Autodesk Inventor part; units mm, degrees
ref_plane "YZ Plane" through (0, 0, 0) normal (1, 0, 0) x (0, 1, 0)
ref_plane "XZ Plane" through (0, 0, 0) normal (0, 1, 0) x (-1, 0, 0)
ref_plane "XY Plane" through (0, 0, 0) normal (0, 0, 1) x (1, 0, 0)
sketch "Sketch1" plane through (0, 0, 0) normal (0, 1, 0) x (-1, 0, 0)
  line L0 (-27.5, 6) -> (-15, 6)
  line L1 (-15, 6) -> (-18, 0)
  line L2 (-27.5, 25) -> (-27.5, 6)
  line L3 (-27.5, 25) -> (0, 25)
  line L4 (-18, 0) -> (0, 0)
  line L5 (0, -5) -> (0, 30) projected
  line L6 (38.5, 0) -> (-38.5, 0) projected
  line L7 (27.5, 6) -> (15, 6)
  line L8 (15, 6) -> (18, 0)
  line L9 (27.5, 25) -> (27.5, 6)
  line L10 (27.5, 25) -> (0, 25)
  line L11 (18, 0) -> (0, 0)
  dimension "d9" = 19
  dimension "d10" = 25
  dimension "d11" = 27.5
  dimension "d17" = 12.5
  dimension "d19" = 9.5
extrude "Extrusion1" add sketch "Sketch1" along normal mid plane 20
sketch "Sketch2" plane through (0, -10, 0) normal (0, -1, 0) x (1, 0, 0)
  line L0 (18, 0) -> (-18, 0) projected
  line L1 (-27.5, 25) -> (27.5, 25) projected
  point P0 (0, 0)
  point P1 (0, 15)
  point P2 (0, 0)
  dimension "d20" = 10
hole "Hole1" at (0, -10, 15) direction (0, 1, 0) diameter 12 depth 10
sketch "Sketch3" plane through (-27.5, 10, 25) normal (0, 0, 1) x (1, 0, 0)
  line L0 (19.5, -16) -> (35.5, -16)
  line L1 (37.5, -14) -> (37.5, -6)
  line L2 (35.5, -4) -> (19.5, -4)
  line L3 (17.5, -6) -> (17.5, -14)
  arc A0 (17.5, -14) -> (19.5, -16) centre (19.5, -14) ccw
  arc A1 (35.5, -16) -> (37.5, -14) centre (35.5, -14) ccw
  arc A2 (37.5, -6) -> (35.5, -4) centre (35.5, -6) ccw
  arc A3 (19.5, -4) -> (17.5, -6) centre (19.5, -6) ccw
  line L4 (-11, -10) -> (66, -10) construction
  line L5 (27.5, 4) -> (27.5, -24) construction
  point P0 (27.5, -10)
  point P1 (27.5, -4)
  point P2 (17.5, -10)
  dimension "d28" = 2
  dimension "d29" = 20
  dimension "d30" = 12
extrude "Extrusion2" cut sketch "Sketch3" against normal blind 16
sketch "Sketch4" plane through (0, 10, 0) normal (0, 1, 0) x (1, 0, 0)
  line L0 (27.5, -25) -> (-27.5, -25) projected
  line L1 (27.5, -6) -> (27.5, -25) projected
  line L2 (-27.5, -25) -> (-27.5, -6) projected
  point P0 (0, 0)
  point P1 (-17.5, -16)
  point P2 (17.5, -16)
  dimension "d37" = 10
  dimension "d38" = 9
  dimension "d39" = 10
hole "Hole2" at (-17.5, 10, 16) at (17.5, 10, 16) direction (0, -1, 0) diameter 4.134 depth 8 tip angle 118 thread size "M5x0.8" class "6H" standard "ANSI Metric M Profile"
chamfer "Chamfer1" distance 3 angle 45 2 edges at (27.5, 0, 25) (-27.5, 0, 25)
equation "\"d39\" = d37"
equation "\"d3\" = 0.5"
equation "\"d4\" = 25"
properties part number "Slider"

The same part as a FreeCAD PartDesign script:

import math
import FreeCAD as App
import Part
import Sketcher

V = App.Vector


def edges_at(feature, points):
    """Names of the edges that pass closest to the given points."""
    edges = feature.Shape.Edges
    near = lambda p: min(range(len(edges)), key=lambda i: edges[i].distToShape(Part.Vertex(*p))[0])
    return sorted({f"Edge{near(p) + 1}" for p in points})


def add_polygon(sketch, points):
    """Adds a closed chain of lines whose ends are joined by coincident constraints."""
    first, n = sketch.GeometryCount, len(points)
    for a, b in zip(points, points[1:] + points[:1]):
        sketch.addGeometry(Part.LineSegment(App.Vector(*a, 0), App.Vector(*b, 0)), False)
    for i in range(n):
        sketch.addConstraint(Sketcher.Constraint("Coincident", first + i, 2, first + (i + 1) % n, 1))

doc = App.newDocument("Part")
body = doc.addObject("PartDesign::Body", "Body")

# Sketch on XZ plane
sketch1 = body.newObject("Sketcher::SketchObject", "Sketch")
sketch1.AttachmentSupport = (doc.getObject("XZ_Plane"), [""])
sketch1.MapMode = "FlatFace"
add_polygon(sketch1, [(28, 25), (28, 6), (15, 6), (18, 0), (-18, 0), (-15, 6), (-28, 6), (-28, 25)])  # lines 0-7
sketch1.addConstraint([
    Sketcher.Constraint("Vertical", 0),
    Sketcher.Constraint("Horizontal", 1),
    Sketcher.Constraint("Horizontal", 3),
    Sketcher.Constraint("Horizontal", 5),
    Sketcher.Constraint("Vertical", 6),
    Sketcher.Constraint("Horizontal", 7),
    Sketcher.Constraint("Symmetric", 2, 2, 3, 2, -1, 1),
    Sketcher.Constraint("Symmetric", 1, 2, 4, 2, -2),
    Sketcher.Constraint("Equal", 1, 5),
    Sketcher.Constraint("DistanceY", 0, 2, 0, 1, 19.0),
    Sketcher.Constraint("DistanceX", 1, 2, 1, 1, 12.5),
    Sketcher.Constraint("DistanceY", -1, 1, 6, 2, 25.0),
    Sketcher.Constraint("DistanceX", -1, 1, 0, 2, 27.5),
    Sketcher.Constraint("DistanceX", 2, 2, 0, 2, 9.5),
])
pad1 = body.newObject("PartDesign::Pad", "Pad")
pad1.Profile = sketch1
pad1.Length = 20
pad1.Midplane = True

# Sketch on XZ plane
sketch2 = body.newObject("Sketcher::SketchObject", "Sketch001")
sketch2.AttachmentSupport = (doc.getObject("XZ_Plane"), [""])
sketch2.MapMode = "FlatFace"
sketch2.AttachmentOffset = App.Placement(V(0, 0, 10), App.Rotation())
sketch2.addGeometry(Part.Circle(V(0, 15, 0), V(0, 0, 1), 6), False)
sketch2.addConstraint([
    Sketcher.Constraint("PointOnObject", 0, 3, -2),
    Sketcher.Constraint("Diameter", 0, 12.0),
    Sketcher.Constraint("DistanceY", -1, 1, 0, 3, 15.0),
])
doc.recompute()
hole = body.newObject("PartDesign::Hole", "Hole")
hole.Profile = sketch2
hole.ThreadType = "None"
hole.Diameter = 12
hole.DepthType = "Dimension"
hole.Depth = 10
hole.DrillPoint = "Flat"

# Sketch on XY plane
sketch3 = body.newObject("Sketcher::SketchObject", "Sketch002")
sketch3.AttachmentSupport = (doc.getObject("XY_Plane"), [""])
sketch3.MapMode = "FlatFace"
sketch3.AttachmentOffset = App.Placement(V(0, 0, 25), App.Rotation())
sketch3.addGeometry([
    Part.ArcOfCircle(Part.Circle(V(-8, -4, 0), V(0, 0, 1), 2), math.radians(180), math.radians(270)),  # 0
    Part.LineSegment(V(-8, -6, 0), V(8, -6, 0)),  # 1
    Part.ArcOfCircle(Part.Circle(V(8, -4, 0), V(0, 0, 1), 2), math.radians(-90), math.radians(0)),  # 2
    Part.LineSegment(V(10, -4, 0), V(10, 4, 0)),  # 3
    Part.ArcOfCircle(Part.Circle(V(8, 4, 0), V(0, 0, 1), 2), math.radians(0), math.radians(90)),  # 4
    Part.LineSegment(V(8, 6, 0), V(-8, 6, 0)),  # 5
    Part.ArcOfCircle(Part.Circle(V(-8, 4, 0), V(0, 0, 1), 2), math.radians(90), math.radians(180)),  # 6
    Part.LineSegment(V(-10, 4, 0), V(-10, -4, 0)),  # 7
], False)
sketch3.addConstraint([
    Sketcher.Constraint("Tangent", 0, 2, 1, 1),
    Sketcher.Constraint("Tangent", 1, 2, 2, 1),
    Sketcher.Constraint("Tangent", 2, 2, 3, 1),
    Sketcher.Constraint("Tangent", 3, 2, 4, 1),
    Sketcher.Constraint("Tangent", 4, 2, 5, 1),
    Sketcher.Constraint("Tangent", 5, 2, 6, 1),
    Sketcher.Constraint("Tangent", 6, 2, 7, 1),
    Sketcher.Constraint("Tangent", 7, 2, 0, 1),
    Sketcher.Constraint("Horizontal", 1),
    Sketcher.Constraint("Vertical", 3),
    Sketcher.Constraint("Horizontal", 5),
    Sketcher.Constraint("Vertical", 7),
    Sketcher.Constraint("Equal", 0, 2),
    Sketcher.Constraint("Equal", 2, 4),
    Sketcher.Constraint("Equal", 4, 6),
    Sketcher.Constraint("Symmetric", 0, 3, 4, 3, -1, 1),
    Sketcher.Constraint("Radius", 0, 2.0),
    Sketcher.Constraint("DistanceY", 1, 2, 4, 2, 12.0),
    Sketcher.Constraint("DistanceX", 1, 1, 1, 2, 16.0),
])
pocket1 = body.newObject("PartDesign::Pocket", "Pocket")
pocket1.Profile = sketch3
pocket1.Length = 16

# Sketch on XZ plane
sketch4 = body.newObject("Sketcher::SketchObject", "Sketch003")
sketch4.AttachmentSupport = (doc.getObject("XZ_Plane"), [""])
sketch4.MapMode = "FlatFace"
sketch4.AttachmentOffset = App.Placement(V(0, 0, -10), App.Rotation())
sketch4.addGeometry([
    Part.Circle(V(-17.5, 16, 0), V(0, 0, 1), 2.1),
    Part.Circle(V(17.5, 16, 0), V(0, 0, 1), 2.1),
], False)
sketch4.addConstraint([
    Sketcher.Constraint("Equal", 0, 1),
    Sketcher.Constraint("Symmetric", 0, 3, 1, 3, -2),
    Sketcher.Constraint("Diameter", 0, 4.134),
    Sketcher.Constraint("DistanceY", -1, 1, 0, 3, 16.0),
    Sketcher.Constraint("DistanceX", 0, 3, 1, 3, 35.0),
])
doc.recompute()
hole2 = body.newObject("PartDesign::Hole", "Hole001")
hole2.Profile = sketch4
hole2.ThreadType = "None"
hole2.Diameter = 4.134
hole2.DepthType = "Dimension"
hole2.Depth = 8
hole2.DrillPoint = "Angled"
hole2.DrillPointAngle = 118
hole2.Reversed = True
doc.recompute()

chamfer = body.newObject("PartDesign::Chamfer", "Chamfer")
chamfer.Base = (hole2, edges_at(hole2, [(27.5, 0, 25), (-27.5, 0, 25)]))
chamfer.Size = 3

doc.recompute()
